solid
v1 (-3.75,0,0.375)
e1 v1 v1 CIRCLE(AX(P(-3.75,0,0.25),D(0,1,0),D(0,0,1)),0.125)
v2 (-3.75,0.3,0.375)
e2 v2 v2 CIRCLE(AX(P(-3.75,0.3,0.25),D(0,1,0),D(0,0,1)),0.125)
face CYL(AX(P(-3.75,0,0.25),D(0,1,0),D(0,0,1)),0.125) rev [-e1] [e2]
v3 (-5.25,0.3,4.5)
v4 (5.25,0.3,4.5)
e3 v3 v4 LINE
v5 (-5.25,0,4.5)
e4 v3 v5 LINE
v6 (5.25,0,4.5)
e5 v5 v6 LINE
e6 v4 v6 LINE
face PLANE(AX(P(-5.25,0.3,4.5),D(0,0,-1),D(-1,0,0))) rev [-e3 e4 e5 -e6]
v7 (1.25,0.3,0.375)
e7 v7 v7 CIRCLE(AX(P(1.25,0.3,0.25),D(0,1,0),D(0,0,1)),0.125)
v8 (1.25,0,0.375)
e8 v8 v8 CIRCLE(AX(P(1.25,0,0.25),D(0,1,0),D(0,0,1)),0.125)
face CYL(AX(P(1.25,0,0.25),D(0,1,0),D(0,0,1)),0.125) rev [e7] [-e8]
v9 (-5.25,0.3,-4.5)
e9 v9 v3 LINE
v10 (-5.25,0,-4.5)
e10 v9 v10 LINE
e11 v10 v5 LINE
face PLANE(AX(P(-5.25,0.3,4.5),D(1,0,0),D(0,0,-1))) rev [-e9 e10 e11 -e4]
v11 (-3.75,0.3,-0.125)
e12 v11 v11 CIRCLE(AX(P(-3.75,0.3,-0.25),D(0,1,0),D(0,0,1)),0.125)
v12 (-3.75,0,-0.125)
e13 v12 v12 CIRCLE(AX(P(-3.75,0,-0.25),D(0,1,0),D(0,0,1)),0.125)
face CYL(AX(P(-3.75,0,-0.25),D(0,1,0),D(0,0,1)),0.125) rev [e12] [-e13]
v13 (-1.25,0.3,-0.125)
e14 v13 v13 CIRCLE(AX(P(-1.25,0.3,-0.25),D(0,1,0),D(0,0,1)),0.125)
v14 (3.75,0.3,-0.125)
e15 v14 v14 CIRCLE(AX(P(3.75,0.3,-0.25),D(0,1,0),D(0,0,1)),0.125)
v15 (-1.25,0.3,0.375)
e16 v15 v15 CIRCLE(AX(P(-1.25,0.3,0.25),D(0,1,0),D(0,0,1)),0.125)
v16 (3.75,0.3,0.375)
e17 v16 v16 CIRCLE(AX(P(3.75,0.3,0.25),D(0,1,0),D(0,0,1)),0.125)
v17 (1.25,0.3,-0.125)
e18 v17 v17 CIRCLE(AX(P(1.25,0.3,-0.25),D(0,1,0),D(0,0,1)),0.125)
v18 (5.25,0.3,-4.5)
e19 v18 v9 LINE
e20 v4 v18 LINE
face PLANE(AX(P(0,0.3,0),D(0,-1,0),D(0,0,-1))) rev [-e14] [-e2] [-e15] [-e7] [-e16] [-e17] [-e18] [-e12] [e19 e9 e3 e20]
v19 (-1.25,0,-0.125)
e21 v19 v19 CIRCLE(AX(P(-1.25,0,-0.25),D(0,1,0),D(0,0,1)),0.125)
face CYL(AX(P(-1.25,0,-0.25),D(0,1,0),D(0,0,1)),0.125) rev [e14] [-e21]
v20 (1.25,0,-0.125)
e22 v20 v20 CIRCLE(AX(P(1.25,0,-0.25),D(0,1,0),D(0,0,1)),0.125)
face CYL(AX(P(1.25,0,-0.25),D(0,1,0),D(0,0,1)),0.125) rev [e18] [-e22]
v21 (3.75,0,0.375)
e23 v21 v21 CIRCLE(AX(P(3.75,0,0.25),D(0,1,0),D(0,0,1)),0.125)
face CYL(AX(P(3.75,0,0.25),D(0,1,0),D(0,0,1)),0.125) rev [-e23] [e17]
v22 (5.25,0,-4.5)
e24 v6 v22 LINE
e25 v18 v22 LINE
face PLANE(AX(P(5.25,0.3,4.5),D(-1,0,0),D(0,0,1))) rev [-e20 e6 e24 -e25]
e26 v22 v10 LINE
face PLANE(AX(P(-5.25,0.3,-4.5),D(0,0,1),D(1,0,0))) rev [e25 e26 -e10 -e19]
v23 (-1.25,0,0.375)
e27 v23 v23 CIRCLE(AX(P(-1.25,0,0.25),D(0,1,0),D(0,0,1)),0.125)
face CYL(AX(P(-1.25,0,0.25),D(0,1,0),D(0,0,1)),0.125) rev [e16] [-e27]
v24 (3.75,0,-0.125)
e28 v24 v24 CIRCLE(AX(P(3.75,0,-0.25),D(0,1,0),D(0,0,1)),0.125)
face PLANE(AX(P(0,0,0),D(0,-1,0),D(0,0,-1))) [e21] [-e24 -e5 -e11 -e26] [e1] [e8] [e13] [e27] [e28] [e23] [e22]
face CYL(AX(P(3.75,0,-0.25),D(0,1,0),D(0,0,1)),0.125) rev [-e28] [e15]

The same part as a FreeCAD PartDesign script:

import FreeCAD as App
import Part
import Sketcher


def add_polygon(sketch, points):
    """Adds a closed chain of lines whose ends are joined by coincident constraints."""
    first, n = sketch.GeometryCount, len(points)
    for a, b in zip(points, points[1:] + points[:1]):
        sketch.addGeometry(Part.LineSegment(App.Vector(*a, 0), App.Vector(*b, 0)), False)
    for i in range(n):
        sketch.addConstraint(Sketcher.Constraint("Coincident", first + i, 2, first + (i + 1) % n, 1))

doc = App.newDocument("Part")
body = doc.addObject("PartDesign::Body", "Body")

sketch1 = body.newObject("Sketcher::SketchObject", "Sketch")
sketch1.AttachmentSupport = (doc.getObject("XZ_Plane"), [""])
sketch1.MapMode = "FlatFace"
add_polygon(sketch1, [(-5, -4), (-5, 4), (5, 4), (5, -4)])
sketch1.addConstraint([
    Sketcher.Constraint("Vertical", 0),
    Sketcher.Constraint("Horizontal", 1),
    Sketcher.Constraint("Vertical", 2),
    Sketcher.Constraint("Horizontal", 3),
    Sketcher.Constraint("Symmetric", 0, 2, 2, 2, -1, 1),
    Sketcher.Constraint("DistanceY", 0, 1, 0, 2, 9.0),
    Sketcher.Constraint("DistanceX", 1, 1, 1, 2, 10.5),
])
pad1 = body.newObject("PartDesign::Pad", "Pad")
pad1.Profile = sketch1
pad1.Length = 0.3
pad1.Reversed = True

sketch2 = body.newObject("Sketcher::SketchObject", "Sketch001")
sketch2.AttachmentSupport = (doc.getObject("XZ_Plane"), [""])
sketch2.MapMode = "FlatFace"
sketch2.AttachmentOffset = App.Placement(App.Vector(0, 0, -0.3), App.Rotation())
sketch2.addGeometry([
    Part.Circle(App.Vector(-3.75, -0.25, 0), App.Vector(0, 0, 1), 0.12),
    Part.Circle(App.Vector(-1.25, -0.25, 0), App.Vector(0, 0, 1), 0.12),
    Part.Circle(App.Vector(1.25, -0.25, 0), App.Vector(0, 0, 1), 0.12),
    Part.Circle(App.Vector(3.75, -0.25, 0), App.Vector(0, 0, 1), 0.12),
    Part.Circle(App.Vector(-1.25, 0.25, 0), App.Vector(0, 0, 1), 0.12),
    Part.Circle(App.Vector(1.25, 0.25, 0), App.Vector(0, 0, 1), 0.12),
    Part.Circle(App.Vector(3.75, 0.25, 0), App.Vector(0, 0, 1), 0.12),
    Part.Circle(App.Vector(-3.75, 0.25, 0), App.Vector(0, 0, 1), 0.12),
], False)
sketch2.addConstraint([
    Sketcher.Constraint("Equal", 0, 1),
    Sketcher.Constraint("Equal", 1, 2),
    Sketcher.Constraint("Equal", 2, 3),
    Sketcher.Constraint("Equal", 3, 4),
    Sketcher.Constraint("Equal", 4, 5),
    Sketcher.Constraint("Equal", 5, 6),
    Sketcher.Constraint("Equal", 6, 7),
    Sketcher.Constraint("Symmetric", 2, 3, 4, 3, -1, 1),
    Sketcher.Constraint("Symmetric", 1, 3, 5, 3, -1, 1),
    Sketcher.Constraint("Symmetric", 0, 3, 6, 3, -1, 1),
    Sketcher.Constraint("Symmetric", 3, 3, 7, 3, -1, 1),
    Sketcher.Constraint("Symmetric", 1, 3, 2, 3, -2),
    Sketcher.Constraint("Symmetric", 0, 3, 3, 3, -2),
    Sketcher.Constraint("Horizontal", 0, 3, 1, 3),
    Sketcher.Constraint("Diameter", 0, 0.25),
    Sketcher.Constraint("DistanceX", 0, 3, 2, 3, 5.0),
    Sketcher.Constraint("DistanceX", 0, 3, 1, 3, 2.5),
    Sketcher.Constraint("DistanceY", 1, 3, 4, 3, 0.5),
])
pocket1 = body.newObject("PartDesign::Pocket", "Pocket")
pocket1.Profile = sketch2
pocket1.Type = "ThroughAll"
pocket1.Reversed = True

doc.recompute()
